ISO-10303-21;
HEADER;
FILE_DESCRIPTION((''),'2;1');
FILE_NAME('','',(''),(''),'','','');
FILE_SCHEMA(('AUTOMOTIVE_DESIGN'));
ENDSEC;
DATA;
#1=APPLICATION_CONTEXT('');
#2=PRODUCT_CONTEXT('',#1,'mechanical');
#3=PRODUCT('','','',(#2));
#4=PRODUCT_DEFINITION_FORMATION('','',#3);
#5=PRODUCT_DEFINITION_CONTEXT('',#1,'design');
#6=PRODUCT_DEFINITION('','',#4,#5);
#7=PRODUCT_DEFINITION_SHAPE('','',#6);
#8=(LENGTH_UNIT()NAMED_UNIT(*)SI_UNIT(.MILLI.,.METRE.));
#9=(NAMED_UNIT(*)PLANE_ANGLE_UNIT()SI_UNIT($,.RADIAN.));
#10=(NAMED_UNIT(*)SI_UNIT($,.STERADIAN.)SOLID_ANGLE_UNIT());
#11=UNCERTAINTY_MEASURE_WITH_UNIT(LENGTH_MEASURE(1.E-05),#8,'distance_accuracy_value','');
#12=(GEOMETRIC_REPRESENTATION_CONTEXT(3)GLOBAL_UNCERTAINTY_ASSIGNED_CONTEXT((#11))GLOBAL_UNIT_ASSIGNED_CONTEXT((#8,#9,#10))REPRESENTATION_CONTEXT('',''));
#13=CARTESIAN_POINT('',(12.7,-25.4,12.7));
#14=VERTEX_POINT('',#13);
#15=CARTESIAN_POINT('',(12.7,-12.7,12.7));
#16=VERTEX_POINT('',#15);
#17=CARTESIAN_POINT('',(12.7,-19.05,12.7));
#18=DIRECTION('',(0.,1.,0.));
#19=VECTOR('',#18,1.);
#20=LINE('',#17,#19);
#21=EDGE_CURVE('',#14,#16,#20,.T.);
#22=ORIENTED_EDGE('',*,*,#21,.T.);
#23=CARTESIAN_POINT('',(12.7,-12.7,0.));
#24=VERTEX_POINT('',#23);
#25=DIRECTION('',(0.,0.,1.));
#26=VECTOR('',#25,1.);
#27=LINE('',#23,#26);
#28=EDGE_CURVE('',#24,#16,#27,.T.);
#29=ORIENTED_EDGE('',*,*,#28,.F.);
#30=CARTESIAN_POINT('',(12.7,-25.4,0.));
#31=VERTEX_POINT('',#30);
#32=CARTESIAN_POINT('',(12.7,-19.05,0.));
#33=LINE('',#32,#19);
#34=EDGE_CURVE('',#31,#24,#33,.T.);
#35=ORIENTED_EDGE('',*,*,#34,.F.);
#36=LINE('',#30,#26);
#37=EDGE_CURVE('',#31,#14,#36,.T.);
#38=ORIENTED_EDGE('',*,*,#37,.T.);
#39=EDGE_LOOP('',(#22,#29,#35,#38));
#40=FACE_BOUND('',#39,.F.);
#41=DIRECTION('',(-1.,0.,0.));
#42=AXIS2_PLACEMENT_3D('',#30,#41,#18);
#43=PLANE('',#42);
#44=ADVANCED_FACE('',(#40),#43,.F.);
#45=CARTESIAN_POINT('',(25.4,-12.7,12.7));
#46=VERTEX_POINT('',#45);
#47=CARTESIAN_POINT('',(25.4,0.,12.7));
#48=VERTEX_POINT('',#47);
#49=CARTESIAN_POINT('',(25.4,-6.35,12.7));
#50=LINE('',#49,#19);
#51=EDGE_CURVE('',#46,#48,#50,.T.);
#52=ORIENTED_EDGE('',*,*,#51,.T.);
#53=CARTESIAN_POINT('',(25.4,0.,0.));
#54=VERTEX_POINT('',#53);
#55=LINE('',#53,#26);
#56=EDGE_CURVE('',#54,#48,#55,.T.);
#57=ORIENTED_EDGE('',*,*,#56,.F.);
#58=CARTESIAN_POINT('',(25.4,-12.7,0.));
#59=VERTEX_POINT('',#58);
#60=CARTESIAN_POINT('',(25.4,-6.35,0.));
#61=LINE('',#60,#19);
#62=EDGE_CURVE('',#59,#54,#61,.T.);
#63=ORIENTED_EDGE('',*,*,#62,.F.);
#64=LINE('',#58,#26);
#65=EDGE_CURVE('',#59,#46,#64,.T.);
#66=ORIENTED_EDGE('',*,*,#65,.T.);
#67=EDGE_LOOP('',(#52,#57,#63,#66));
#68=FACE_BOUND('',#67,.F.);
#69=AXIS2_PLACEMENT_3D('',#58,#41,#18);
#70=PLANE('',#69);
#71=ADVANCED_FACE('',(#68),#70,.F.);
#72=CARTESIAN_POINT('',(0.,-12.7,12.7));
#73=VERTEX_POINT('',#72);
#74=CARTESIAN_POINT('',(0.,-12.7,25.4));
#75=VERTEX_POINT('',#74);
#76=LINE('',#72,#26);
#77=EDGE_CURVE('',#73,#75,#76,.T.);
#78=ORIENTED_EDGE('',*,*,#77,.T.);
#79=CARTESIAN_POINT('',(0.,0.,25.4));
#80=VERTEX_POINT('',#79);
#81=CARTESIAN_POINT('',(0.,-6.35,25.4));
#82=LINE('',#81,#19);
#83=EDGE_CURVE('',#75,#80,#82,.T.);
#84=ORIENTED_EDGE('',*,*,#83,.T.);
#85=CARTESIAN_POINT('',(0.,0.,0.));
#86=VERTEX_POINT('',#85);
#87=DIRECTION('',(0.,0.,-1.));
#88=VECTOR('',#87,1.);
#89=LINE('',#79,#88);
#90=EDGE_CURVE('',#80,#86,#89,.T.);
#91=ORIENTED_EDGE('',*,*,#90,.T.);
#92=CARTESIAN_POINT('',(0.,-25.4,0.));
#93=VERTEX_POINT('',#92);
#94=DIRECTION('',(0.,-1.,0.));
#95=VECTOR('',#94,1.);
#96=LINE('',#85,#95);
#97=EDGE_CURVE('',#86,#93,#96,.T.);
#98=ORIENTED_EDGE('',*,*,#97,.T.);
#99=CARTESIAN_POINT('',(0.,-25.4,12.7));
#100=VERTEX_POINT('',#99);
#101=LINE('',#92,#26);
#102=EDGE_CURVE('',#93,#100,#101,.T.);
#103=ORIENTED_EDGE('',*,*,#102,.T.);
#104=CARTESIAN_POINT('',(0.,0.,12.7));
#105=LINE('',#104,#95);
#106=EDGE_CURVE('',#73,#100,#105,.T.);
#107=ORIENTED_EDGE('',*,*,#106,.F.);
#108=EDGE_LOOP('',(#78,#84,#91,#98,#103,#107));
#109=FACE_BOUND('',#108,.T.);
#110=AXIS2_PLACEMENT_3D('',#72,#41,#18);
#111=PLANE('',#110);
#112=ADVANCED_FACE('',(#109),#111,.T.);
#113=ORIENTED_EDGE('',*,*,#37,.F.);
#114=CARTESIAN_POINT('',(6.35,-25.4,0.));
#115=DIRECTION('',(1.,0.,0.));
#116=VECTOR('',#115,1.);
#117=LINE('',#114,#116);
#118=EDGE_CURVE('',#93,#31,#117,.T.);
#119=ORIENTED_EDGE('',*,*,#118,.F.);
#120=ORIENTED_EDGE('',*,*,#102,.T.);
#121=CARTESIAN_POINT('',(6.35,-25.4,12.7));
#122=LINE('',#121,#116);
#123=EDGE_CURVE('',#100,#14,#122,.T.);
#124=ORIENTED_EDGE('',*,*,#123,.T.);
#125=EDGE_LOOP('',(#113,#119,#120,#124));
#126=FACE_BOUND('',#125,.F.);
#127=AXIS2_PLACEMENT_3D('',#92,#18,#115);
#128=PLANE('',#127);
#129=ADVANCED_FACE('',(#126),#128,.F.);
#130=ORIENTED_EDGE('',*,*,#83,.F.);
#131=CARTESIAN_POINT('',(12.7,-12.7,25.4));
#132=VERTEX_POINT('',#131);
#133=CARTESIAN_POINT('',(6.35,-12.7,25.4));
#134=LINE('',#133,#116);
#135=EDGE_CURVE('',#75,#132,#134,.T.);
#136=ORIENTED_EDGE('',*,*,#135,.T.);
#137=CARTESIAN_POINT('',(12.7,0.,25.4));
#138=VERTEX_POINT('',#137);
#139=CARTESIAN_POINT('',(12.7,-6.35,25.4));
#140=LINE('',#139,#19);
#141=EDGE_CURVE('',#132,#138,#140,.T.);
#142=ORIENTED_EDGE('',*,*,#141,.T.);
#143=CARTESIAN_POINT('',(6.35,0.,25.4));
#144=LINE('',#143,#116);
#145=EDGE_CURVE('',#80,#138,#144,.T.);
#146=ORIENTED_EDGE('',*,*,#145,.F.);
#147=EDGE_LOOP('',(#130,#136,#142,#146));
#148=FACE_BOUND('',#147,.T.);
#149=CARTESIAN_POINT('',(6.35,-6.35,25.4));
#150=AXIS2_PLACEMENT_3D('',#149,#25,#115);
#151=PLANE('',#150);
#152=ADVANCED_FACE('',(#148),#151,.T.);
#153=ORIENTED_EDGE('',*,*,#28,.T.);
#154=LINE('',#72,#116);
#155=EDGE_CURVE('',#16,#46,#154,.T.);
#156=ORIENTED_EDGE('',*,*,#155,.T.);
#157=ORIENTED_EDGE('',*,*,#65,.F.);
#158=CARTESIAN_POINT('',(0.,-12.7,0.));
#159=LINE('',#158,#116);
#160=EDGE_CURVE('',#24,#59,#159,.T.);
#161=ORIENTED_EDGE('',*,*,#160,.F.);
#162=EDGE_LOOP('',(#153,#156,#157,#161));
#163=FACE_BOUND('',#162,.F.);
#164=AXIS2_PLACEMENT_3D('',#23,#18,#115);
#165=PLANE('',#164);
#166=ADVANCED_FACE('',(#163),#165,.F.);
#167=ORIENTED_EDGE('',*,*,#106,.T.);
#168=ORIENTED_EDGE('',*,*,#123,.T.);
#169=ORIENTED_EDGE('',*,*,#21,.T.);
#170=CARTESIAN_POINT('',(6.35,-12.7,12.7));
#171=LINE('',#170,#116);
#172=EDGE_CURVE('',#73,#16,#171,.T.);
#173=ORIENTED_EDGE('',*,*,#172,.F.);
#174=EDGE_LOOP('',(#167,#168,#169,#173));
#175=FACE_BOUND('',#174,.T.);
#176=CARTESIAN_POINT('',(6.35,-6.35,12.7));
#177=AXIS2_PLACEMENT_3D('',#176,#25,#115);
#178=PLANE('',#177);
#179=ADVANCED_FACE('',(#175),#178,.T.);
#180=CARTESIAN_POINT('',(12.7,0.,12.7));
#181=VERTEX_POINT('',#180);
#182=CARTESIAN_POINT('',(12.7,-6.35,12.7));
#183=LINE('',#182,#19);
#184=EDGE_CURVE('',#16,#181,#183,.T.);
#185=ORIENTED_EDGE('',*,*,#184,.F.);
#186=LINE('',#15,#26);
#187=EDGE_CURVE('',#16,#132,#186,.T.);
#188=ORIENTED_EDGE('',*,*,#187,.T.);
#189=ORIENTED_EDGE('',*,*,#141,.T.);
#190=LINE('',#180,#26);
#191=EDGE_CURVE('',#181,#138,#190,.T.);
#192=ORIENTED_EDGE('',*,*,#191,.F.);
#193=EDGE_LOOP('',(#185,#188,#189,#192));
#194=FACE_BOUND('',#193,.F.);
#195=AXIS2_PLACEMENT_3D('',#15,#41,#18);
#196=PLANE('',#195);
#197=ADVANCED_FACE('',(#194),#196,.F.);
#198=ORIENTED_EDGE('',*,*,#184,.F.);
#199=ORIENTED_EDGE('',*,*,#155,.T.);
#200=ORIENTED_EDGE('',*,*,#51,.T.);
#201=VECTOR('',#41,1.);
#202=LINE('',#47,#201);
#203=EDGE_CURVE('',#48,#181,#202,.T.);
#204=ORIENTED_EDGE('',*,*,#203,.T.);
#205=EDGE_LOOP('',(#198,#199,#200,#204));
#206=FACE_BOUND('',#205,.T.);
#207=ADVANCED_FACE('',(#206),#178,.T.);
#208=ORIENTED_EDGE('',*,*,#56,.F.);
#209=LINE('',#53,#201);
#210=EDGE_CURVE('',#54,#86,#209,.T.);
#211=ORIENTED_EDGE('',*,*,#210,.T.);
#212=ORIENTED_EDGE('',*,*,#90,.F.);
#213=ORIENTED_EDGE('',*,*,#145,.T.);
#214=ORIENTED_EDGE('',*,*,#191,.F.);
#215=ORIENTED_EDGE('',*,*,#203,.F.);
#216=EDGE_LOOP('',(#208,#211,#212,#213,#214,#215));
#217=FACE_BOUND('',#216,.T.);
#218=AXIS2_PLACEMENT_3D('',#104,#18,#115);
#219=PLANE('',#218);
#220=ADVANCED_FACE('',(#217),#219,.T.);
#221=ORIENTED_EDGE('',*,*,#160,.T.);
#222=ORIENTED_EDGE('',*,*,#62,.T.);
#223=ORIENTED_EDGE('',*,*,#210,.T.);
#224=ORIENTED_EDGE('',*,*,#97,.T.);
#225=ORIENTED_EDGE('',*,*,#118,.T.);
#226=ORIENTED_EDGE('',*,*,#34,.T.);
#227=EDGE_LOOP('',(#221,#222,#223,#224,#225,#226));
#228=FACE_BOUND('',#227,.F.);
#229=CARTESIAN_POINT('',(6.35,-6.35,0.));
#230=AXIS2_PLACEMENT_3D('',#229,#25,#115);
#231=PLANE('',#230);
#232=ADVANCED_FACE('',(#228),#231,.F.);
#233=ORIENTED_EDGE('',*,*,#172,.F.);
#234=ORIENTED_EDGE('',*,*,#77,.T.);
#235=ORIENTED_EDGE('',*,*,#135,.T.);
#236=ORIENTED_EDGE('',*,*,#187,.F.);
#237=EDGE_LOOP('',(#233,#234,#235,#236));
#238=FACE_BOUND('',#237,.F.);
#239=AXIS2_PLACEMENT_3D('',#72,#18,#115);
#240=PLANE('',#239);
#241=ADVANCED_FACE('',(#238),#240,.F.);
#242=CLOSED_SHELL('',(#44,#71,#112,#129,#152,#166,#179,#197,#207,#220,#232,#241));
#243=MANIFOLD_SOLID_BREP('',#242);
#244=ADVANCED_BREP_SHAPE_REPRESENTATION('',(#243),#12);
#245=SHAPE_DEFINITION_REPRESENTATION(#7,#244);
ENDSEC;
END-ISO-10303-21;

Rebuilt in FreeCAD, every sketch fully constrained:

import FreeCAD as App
import Part
import Sketcher
Q = App.Units.Quantity

doc = App.newDocument("Part")
body = doc.addObject("PartDesign::Body", "Body")

sketch1 = body.newObject("Sketcher::SketchObject", "Sketch")
sketch1.AttachmentSupport = (doc.getObject("XY_Plane"), [""])
sketch1.MapMode = "FlatFace"
sketch1.addGeometry([
    Part.LineSegment(App.Vector(0, 0, 0), App.Vector(0, -25, 0)),
    Part.LineSegment(App.Vector(0, -25, 0), App.Vector(13, -25, 0)),
    Part.LineSegment(App.Vector(13, -25, 0), App.Vector(13, -13, 0)),
    Part.LineSegment(App.Vector(13, -13, 0), App.Vector(25, -13, 0)),
    Part.LineSegment(App.Vector(25, -13, 0), App.Vector(25, 0, 0)),
    Part.LineSegment(App.Vector(25, 0, 0), App.Vector(0, 0, 0)),
], False)
sketch1.addConstraint([
    Sketcher.Constraint("Coincident", 0, 2, 1, 1),
    Sketcher.Constraint("Coincident", 1, 2, 2, 1),
    Sketcher.Constraint("Coincident", 2, 2, 3, 1),
    Sketcher.Constraint("Coincident", 3, 2, 4, 1),
    Sketcher.Constraint("Coincident", 4, 2, 5, 1),
    Sketcher.Constraint("Coincident", 5, 2, 0, 1),
    Sketcher.Constraint("Vertical", 0),
    Sketcher.Constraint("Horizontal", 1),
    Sketcher.Constraint("Vertical", 2),
    Sketcher.Constraint("Horizontal", 3),
    Sketcher.Constraint("Vertical", 4),
    Sketcher.Constraint("Horizontal", 5),
    Sketcher.Constraint("Coincident", 5, 2, -1, 1),
    Sketcher.Constraint("Equal", 1, 3),
    Sketcher.Constraint("Equal", 5, 0),
    Sketcher.Constraint("Equal", 3, 2),
    Sketcher.Constraint("DistanceX", 5, 2, 5, 1, Q("1 in")),
])
pad1 = body.newObject("PartDesign::Pad", "Pad")
pad1.Profile = sketch1
pad1.Length = Q("0.5 in")

sketch2 = body.newObject("Sketcher::SketchObject", "Sketch001")
sketch2.AttachmentSupport = (doc.getObject("XY_Plane"), [""])
sketch2.MapMode = "FlatFace"
sketch2.AttachmentOffset = App.Placement(App.Vector(0, 0, 0.5 * 25.4), App.Rotation())
sketch2.addGeometry([
    Part.LineSegment(App.Vector(0, 0, 0), App.Vector(0, -13, 0)),
    Part.LineSegment(App.Vector(0, -13, 0), App.Vector(13, -13, 0)),
    Part.LineSegment(App.Vector(13, -13, 0), App.Vector(13, 0, 0)),
    Part.LineSegment(App.Vector(13, 0, 0), App.Vector(0, 0, 0)),
], False)
sketch2.addConstraint([
    Sketcher.Constraint("Coincident", 0, 2, 1, 1),
    Sketcher.Constraint("Coincident", 1, 2, 2, 1),
    Sketcher.Constraint("Coincident", 2, 2, 3, 1),
    Sketcher.Constraint("Coincident", 3, 2, 0, 1),
    Sketcher.Constraint("Vertical", 0),
    Sketcher.Constraint("Horizontal", 1),
    Sketcher.Constraint("Vertical", 2),
    Sketcher.Constraint("Horizontal", 3),
    Sketcher.Constraint("Coincident", 3, 2, -1, 1),
    Sketcher.Constraint("Equal", 3, 0),
    Sketcher.Constraint("DistanceX", 1, 1, 1, 2, Q("0.5 in")),
])
pad2 = body.newObject("PartDesign::Pad", "Pad001")
pad2.Profile = sketch2
pad2.Length = Q("0.5 in")

doc.recompute()
